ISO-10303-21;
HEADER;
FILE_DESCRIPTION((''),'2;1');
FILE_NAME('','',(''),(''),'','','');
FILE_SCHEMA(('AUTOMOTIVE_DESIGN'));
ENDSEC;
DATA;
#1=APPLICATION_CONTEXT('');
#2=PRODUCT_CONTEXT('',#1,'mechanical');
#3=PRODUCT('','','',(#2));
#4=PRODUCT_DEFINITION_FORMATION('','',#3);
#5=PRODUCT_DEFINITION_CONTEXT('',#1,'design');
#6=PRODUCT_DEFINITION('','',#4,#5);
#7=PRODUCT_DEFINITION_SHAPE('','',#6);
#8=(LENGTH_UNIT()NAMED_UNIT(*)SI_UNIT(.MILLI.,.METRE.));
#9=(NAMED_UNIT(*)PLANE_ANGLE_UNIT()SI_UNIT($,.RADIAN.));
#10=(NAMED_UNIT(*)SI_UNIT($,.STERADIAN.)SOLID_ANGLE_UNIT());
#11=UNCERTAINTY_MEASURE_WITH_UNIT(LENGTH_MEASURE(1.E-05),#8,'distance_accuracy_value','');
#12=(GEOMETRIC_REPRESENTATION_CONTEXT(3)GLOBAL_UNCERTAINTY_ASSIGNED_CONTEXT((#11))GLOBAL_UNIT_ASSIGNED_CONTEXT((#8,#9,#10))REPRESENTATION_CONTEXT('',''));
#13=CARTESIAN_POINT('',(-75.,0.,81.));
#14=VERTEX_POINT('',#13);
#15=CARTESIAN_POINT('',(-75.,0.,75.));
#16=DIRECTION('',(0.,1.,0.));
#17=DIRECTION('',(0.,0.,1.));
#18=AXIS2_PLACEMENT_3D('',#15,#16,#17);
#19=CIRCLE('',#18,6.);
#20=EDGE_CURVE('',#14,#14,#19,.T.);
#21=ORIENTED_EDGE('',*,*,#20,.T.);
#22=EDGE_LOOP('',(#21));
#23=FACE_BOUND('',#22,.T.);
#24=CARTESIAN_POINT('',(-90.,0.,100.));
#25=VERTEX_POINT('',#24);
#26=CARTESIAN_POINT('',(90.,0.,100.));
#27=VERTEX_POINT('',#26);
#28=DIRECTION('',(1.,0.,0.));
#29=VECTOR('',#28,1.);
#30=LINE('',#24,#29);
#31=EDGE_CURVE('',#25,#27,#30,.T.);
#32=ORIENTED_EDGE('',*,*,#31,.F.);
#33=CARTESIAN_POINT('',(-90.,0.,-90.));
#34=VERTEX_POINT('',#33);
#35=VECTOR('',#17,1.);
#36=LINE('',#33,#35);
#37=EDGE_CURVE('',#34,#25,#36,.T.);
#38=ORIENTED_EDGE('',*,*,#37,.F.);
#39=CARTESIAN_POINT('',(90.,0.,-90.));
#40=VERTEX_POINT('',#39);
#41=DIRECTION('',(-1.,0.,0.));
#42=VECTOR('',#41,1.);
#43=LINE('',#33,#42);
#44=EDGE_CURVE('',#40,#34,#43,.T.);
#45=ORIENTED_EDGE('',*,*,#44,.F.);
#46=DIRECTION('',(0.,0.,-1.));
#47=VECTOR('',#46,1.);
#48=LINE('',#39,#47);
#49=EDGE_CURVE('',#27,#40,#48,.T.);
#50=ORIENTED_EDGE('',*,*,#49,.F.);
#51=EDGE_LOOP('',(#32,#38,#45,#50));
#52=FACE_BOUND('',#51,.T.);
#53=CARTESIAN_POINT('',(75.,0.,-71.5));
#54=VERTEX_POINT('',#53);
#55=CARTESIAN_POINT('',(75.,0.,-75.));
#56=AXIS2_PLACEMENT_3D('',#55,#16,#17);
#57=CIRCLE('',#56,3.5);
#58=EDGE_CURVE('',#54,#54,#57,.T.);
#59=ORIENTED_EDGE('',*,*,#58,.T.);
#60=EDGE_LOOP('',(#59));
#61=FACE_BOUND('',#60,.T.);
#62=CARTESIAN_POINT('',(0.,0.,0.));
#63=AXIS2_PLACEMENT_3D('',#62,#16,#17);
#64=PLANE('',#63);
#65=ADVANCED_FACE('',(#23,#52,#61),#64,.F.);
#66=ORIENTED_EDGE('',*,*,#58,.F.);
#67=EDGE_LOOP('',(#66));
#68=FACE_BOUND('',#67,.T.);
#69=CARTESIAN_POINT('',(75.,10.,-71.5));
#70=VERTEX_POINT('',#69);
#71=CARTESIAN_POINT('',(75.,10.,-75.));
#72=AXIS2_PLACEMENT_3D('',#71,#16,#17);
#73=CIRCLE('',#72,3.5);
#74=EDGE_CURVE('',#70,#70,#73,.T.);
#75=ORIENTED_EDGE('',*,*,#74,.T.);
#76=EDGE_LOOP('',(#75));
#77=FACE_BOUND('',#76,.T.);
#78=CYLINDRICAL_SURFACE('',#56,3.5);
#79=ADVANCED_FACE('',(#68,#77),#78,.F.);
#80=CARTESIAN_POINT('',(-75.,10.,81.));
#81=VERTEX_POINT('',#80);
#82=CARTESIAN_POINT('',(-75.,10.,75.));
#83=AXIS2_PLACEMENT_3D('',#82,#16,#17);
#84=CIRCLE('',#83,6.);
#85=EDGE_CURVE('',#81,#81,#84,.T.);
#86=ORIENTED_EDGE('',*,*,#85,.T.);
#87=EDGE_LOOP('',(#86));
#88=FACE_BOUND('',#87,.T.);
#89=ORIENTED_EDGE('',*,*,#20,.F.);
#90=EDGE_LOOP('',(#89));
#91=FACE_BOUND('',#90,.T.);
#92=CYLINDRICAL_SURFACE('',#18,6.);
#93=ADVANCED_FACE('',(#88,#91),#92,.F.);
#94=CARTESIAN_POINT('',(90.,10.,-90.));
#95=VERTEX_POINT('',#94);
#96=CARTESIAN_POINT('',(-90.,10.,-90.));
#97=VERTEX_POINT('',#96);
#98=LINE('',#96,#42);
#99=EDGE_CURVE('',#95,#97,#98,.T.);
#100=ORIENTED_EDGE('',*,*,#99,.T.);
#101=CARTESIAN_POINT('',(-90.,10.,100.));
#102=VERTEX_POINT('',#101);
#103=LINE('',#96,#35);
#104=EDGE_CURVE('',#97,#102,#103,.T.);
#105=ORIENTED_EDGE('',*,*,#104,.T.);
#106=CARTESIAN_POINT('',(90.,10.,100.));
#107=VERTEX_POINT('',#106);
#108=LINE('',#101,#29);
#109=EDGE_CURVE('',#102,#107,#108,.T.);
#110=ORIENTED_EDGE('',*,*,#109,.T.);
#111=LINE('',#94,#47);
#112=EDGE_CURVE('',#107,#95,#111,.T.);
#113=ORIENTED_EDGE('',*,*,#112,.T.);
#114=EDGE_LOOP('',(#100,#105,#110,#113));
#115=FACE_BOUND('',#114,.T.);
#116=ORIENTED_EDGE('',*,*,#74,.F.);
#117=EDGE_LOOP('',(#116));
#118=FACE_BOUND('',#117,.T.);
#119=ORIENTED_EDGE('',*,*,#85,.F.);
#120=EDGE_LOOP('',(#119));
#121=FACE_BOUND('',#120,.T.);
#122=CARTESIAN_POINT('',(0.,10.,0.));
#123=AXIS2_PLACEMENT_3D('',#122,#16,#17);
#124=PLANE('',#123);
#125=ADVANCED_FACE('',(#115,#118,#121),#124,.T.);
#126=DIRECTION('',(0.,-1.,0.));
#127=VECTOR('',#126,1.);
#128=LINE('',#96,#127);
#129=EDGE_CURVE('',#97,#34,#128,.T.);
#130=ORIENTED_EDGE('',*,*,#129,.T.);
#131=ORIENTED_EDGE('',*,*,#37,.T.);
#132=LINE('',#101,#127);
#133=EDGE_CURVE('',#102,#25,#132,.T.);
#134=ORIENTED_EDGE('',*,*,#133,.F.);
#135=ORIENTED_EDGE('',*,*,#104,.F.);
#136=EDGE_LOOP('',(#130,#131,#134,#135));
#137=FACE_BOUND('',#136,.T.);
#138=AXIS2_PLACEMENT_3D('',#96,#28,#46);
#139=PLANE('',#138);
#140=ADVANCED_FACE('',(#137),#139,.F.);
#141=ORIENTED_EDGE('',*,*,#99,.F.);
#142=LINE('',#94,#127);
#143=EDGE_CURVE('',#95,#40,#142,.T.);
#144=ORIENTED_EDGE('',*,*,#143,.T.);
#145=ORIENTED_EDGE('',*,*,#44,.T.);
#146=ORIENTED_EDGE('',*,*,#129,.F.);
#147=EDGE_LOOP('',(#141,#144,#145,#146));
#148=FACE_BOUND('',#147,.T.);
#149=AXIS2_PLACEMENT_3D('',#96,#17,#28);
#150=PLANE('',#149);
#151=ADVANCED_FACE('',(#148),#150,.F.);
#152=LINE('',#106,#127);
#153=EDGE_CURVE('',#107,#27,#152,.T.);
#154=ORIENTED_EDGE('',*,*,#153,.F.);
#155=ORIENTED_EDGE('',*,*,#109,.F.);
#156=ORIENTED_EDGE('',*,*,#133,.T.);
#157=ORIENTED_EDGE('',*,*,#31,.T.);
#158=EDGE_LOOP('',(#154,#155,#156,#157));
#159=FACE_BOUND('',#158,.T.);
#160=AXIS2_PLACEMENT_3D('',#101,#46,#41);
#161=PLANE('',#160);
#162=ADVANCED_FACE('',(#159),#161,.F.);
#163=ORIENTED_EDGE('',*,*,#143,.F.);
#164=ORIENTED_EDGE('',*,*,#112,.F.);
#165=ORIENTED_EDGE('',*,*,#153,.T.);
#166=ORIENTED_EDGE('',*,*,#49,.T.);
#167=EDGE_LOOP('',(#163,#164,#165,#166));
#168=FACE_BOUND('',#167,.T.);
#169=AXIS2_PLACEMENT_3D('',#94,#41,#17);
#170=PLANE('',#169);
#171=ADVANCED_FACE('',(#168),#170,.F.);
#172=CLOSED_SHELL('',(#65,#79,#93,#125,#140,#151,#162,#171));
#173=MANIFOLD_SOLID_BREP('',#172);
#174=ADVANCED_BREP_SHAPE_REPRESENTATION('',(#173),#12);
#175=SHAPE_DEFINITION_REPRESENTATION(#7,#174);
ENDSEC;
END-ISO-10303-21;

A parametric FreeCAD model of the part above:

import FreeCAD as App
import Part
import Sketcher
from FreeCAD import Vector

doc = App.newDocument("Part")
body = doc.addObject("PartDesign::Body", "Body")

sketch1 = body.newObject("Sketcher::SketchObject", "Sketch")
sketch1.AttachmentSupport = (doc.getObject("XZ_Plane"), [""])
sketch1.MapMode = "FlatFace"
sketch1.addGeometry(Part.LineSegment(Vector(-90, -90, 0), Vector(-90, 100, 0)), False)
sketch1.addGeometry(Part.LineSegment(Vector(-90, 100, 0), Vector(90, 100, 0)), False)
sketch1.addGeometry(Part.LineSegment(Vector(90, 100, 0), Vector(90, -90, 0)), False)
sketch1.addGeometry(Part.LineSegment(Vector(90, -90, 0), Vector(-90, -90, 0)), False)
sketch1.addConstraint(Sketcher.Constraint("Coincident", 0, 2, 1, 1))
sketch1.addConstraint(Sketcher.Constraint("Coincident", 1, 2, 2, 1))
sketch1.addConstraint(Sketcher.Constraint("Coincident", 2, 2, 3, 1))
sketch1.addConstraint(Sketcher.Constraint("Coincident", 3, 2, 0, 1))
sketch1.addConstraint(Sketcher.Constraint("Vertical", 0))
sketch1.addConstraint(Sketcher.Constraint("Horizontal", 1))
sketch1.addConstraint(Sketcher.Constraint("Vertical", 2))
sketch1.addConstraint(Sketcher.Constraint("Horizontal", 3))
sketch1.addConstraint(Sketcher.Constraint("DistanceX", 1, 1, 1, 2, 180.0))
sketch1.addConstraint(Sketcher.Constraint("DistanceY", 0, 1, 0, 2, 190.0))
sketch1.addConstraint(Sketcher.Constraint("DistanceX", 0, 2, -1, 1, 90.0))
sketch1.addConstraint(Sketcher.Constraint("DistanceY", -1, 1, 0, 2, 100.0))
pad1 = body.newObject("PartDesign::Pad", "Pad")
pad1.Profile = sketch1
pad1.Length = 10
pad1.Reversed = True

sketch2 = body.newObject("Sketcher::SketchObject", "Sketch001")
sketch2.AttachmentSupport = (doc.getObject("XZ_Plane"), [""])
sketch2.MapMode = "FlatFace"
sketch2.AttachmentOffset = App.Placement(Vector(0, 0, -10), App.Rotation())
sketch2.addGeometry(Part.Circle(Vector(75, -75, 0), Vector(0, 0, 1), 3.5), False)
sketch2.addConstraint(Sketcher.Constraint("Diameter", 0, 7.0))
sketch2.addConstraint(Sketcher.Constraint("DistanceX", -1, 1, 0, 3, 75.0))
sketch2.addConstraint(Sketcher.Constraint("DistanceY", 0, 3, -1, 1, 75.0))
pocket1 = body.newObject("PartDesign::Pocket", "Pocket")
pocket1.Profile = sketch2
pocket1.Type = "ThroughAll"
pocket1.Reversed = True

sketch3 = body.newObject("Sketcher::SketchObject", "Sketch002")
sketch3.AttachmentSupport = (doc.getObject("XZ_Plane"), [""])
sketch3.MapMode = "FlatFace"
sketch3.AttachmentOffset = App.Placement(Vector(0, 0, -10), App.Rotation())
sketch3.addGeometry(Part.Circle(Vector(-75, 75, 0), Vector(0, 0, 1), 6), False)
sketch3.addConstraint(Sketcher.Constraint("Diameter", 0, 12.0))
sketch3.addConstraint(Sketcher.Constraint("DistanceX", 0, 3, -1, 1, 75.0))
sketch3.addConstraint(Sketcher.Constraint("DistanceY", -1, 1, 0, 3, 75.0))
pocket2 = body.newObject("PartDesign::Pocket", "Pocket001")
pocket2.Profile = sketch3
pocket2.Type = "ThroughAll"
pocket2.Reversed = True

doc.recompute()
